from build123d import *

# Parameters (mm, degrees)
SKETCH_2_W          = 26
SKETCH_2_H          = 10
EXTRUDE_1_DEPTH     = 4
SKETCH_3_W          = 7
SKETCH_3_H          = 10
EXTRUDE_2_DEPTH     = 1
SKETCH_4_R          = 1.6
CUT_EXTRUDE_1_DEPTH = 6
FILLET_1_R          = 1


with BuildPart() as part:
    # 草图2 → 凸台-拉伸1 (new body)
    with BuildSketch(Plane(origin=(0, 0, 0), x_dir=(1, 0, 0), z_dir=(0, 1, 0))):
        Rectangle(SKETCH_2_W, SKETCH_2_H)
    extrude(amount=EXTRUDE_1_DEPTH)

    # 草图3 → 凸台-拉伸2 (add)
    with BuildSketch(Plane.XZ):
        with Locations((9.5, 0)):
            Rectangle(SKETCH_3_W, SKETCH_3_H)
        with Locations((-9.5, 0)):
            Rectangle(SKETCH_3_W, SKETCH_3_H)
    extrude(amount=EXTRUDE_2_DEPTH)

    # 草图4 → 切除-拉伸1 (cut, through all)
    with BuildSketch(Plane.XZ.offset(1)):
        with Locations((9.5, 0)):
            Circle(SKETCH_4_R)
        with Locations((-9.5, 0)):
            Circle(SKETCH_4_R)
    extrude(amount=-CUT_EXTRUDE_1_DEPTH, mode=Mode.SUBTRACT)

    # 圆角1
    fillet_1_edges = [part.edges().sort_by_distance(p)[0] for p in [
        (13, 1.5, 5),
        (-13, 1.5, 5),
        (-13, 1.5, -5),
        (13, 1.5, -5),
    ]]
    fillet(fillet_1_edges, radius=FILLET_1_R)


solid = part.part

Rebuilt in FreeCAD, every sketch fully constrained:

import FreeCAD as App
import Part
import Sketcher

V = App.Vector
Q = App.Units.Quantity


def edges_at(feature, points):
    """Names of the edges that pass closest to the given points."""
    edges = feature.Shape.Edges
    near = lambda p: min(range(len(edges)), key=lambda i: edges[i].distToShape(Part.Vertex(*p))[0])
    return sorted({f"Edge{near(p) + 1}" for p in points})


def add_polygon(sketch, points):
    """Adds a closed chain of lines whose ends are joined by coincident constraints."""
    first, n = sketch.GeometryCount, len(points)
    for a, b in zip(points, points[1:] + points[:1]):
        sketch.addGeometry(Part.LineSegment(App.Vector(*a, 0), App.Vector(*b, 0)), False)
    for i in range(n):
        sketch.addConstraint(Sketcher.Constraint("Coincident", first + i, 2, first + (i + 1) % n, 1))

doc = App.newDocument("Part")
body = doc.addObject("PartDesign::Body", "Body")

# Sketch on XZ plane
sketch1 = body.newObject("Sketcher::SketchObject", "Sketch")
sketch1.AttachmentSupport = (doc.getObject("XZ_Plane"), [""])
sketch1.MapMode = "FlatFace"
add_polygon(sketch1, [(-13, -5), (-13, 5), (13, 5), (13, -5)])  # lines 0-3
sketch1.addConstraint(Sketcher.Constraint("Vertical", 0))
sketch1.addConstraint(Sketcher.Constraint("Horizontal", 1))
sketch1.addConstraint(Sketcher.Constraint("Vertical", 2))
sketch1.addConstraint(Sketcher.Constraint("Horizontal", 3))
sketch1.addConstraint(Sketcher.Constraint("Symmetric", 0, 2, 2, 2, -1, 1))
sketch1.addConstraint(Sketcher.Constraint("DistanceX", 1, 1, 1, 2, Q("26 mm")))
sketch1.addConstraint(Sketcher.Constraint("DistanceY", 0, 1, 0, 2, Q("10 mm")))
pad1 = body.newObject("PartDesign::Pad", "Pad")
pad1.Profile = sketch1
pad1.Length = 4
pad1.Reversed = True

# Sketch on XZ plane
sketch2 = body.newObject("Sketcher::SketchObject", "Sketch001")
sketch2.AttachmentSupport = (doc.getObject("XZ_Plane"), [""])
sketch2.MapMode = "FlatFace"
add_polygon(sketch2, [(6, 5), (6, -5), (13, -5), (13, 5)])  # lines 0-3
add_polygon(sketch2, [(-13, 5), (-13, -5), (-6, -5), (-6, 5)])  # lines 4-7
sketch2.addConstraint(Sketcher.Constraint("Vertical", 0))
sketch2.addConstraint(Sketcher.Constraint("Horizontal", 1))
sketch2.addConstraint(Sketcher.Constraint("Vertical", 2))
sketch2.addConstraint(Sketcher.Constraint("Horizontal", 3))
sketch2.addConstraint(Sketcher.Constraint("Vertical", 4))
sketch2.addConstraint(Sketcher.Constraint("Horizontal", 5))
sketch2.addConstraint(Sketcher.Constraint("Vertical", 6))
sketch2.addConstraint(Sketcher.Constraint("Horizontal", 7))
sketch2.addConstraint(Sketcher.Constraint("Symmetric", 2, 2, 4, 2, -1, 1))
sketch2.addConstraint(Sketcher.Constraint("Symmetric", 0, 2, 6, 2, -1, 1))
sketch2.addConstraint(Sketcher.Constraint("Horizontal", 1, 2, 4, 2))
sketch2.addConstraint(Sketcher.Constraint("DistanceX", 1, 1, 1, 2, Q("7 mm")))
sketch2.addConstraint(Sketcher.Constraint("DistanceY", 0, 2, 0, 1, Q("10 mm")))
sketch2.addConstraint(Sketcher.Constraint("DistanceX", -1, 1, 0, 2, Q("6 mm")))
pad2 = body.newObject("PartDesign::Pad", "Pad001")
pad2.Profile = sketch2
pad2.Length = 1

# Sketch on XZ plane
sketch3 = body.newObject("Sketcher::SketchObject", "Sketch002")
sketch3.AttachmentSupport = (doc.getObject("XZ_Plane"), [""])
sketch3.MapMode = "FlatFace"
sketch3.AttachmentOffset = App.Placement(V(0, 0, 1), App.Rotation())
sketch3.addGeometry(Part.Circle(V(9.5, 0, 0), V(0, 0, 1), 1.6), False)
sketch3.addGeometry(Part.Circle(V(-9.5, 0, 0), V(0, 0, 1), 1.6), False)
sketch3.addConstraint(Sketcher.Constraint("Equal", 0, 1))
sketch3.addConstraint(Sketcher.Constraint("Symmetric", 0, 3, 1, 3, -1, 1))
sketch3.addConstraint(Sketcher.Constraint("PointOnObject", 0, 3, -1))
sketch3.addConstraint(Sketcher.Constraint("Diameter", 0, Q("3.2 mm")))
sketch3.addConstraint(Sketcher.Constraint("DistanceX", 1, 3, 0, 3, Q("19 mm")))
pocket1 = body.newObject("PartDesign::Pocket", "Pocket")
pocket1.Profile = sketch3
pocket1.Type = "ThroughAll"
doc.recompute()

fillet = body.newObject("PartDesign::Fillet", "Fillet")
fillet.Base = (pocket1, edges_at(pocket1, [
    (13, 1.5, 5),
    (-13, 1.5, 5),
    (-13, 1.5, -5),
    (13, 1.5, -5),
]))
fillet.Radius = 1

doc.recompute()
